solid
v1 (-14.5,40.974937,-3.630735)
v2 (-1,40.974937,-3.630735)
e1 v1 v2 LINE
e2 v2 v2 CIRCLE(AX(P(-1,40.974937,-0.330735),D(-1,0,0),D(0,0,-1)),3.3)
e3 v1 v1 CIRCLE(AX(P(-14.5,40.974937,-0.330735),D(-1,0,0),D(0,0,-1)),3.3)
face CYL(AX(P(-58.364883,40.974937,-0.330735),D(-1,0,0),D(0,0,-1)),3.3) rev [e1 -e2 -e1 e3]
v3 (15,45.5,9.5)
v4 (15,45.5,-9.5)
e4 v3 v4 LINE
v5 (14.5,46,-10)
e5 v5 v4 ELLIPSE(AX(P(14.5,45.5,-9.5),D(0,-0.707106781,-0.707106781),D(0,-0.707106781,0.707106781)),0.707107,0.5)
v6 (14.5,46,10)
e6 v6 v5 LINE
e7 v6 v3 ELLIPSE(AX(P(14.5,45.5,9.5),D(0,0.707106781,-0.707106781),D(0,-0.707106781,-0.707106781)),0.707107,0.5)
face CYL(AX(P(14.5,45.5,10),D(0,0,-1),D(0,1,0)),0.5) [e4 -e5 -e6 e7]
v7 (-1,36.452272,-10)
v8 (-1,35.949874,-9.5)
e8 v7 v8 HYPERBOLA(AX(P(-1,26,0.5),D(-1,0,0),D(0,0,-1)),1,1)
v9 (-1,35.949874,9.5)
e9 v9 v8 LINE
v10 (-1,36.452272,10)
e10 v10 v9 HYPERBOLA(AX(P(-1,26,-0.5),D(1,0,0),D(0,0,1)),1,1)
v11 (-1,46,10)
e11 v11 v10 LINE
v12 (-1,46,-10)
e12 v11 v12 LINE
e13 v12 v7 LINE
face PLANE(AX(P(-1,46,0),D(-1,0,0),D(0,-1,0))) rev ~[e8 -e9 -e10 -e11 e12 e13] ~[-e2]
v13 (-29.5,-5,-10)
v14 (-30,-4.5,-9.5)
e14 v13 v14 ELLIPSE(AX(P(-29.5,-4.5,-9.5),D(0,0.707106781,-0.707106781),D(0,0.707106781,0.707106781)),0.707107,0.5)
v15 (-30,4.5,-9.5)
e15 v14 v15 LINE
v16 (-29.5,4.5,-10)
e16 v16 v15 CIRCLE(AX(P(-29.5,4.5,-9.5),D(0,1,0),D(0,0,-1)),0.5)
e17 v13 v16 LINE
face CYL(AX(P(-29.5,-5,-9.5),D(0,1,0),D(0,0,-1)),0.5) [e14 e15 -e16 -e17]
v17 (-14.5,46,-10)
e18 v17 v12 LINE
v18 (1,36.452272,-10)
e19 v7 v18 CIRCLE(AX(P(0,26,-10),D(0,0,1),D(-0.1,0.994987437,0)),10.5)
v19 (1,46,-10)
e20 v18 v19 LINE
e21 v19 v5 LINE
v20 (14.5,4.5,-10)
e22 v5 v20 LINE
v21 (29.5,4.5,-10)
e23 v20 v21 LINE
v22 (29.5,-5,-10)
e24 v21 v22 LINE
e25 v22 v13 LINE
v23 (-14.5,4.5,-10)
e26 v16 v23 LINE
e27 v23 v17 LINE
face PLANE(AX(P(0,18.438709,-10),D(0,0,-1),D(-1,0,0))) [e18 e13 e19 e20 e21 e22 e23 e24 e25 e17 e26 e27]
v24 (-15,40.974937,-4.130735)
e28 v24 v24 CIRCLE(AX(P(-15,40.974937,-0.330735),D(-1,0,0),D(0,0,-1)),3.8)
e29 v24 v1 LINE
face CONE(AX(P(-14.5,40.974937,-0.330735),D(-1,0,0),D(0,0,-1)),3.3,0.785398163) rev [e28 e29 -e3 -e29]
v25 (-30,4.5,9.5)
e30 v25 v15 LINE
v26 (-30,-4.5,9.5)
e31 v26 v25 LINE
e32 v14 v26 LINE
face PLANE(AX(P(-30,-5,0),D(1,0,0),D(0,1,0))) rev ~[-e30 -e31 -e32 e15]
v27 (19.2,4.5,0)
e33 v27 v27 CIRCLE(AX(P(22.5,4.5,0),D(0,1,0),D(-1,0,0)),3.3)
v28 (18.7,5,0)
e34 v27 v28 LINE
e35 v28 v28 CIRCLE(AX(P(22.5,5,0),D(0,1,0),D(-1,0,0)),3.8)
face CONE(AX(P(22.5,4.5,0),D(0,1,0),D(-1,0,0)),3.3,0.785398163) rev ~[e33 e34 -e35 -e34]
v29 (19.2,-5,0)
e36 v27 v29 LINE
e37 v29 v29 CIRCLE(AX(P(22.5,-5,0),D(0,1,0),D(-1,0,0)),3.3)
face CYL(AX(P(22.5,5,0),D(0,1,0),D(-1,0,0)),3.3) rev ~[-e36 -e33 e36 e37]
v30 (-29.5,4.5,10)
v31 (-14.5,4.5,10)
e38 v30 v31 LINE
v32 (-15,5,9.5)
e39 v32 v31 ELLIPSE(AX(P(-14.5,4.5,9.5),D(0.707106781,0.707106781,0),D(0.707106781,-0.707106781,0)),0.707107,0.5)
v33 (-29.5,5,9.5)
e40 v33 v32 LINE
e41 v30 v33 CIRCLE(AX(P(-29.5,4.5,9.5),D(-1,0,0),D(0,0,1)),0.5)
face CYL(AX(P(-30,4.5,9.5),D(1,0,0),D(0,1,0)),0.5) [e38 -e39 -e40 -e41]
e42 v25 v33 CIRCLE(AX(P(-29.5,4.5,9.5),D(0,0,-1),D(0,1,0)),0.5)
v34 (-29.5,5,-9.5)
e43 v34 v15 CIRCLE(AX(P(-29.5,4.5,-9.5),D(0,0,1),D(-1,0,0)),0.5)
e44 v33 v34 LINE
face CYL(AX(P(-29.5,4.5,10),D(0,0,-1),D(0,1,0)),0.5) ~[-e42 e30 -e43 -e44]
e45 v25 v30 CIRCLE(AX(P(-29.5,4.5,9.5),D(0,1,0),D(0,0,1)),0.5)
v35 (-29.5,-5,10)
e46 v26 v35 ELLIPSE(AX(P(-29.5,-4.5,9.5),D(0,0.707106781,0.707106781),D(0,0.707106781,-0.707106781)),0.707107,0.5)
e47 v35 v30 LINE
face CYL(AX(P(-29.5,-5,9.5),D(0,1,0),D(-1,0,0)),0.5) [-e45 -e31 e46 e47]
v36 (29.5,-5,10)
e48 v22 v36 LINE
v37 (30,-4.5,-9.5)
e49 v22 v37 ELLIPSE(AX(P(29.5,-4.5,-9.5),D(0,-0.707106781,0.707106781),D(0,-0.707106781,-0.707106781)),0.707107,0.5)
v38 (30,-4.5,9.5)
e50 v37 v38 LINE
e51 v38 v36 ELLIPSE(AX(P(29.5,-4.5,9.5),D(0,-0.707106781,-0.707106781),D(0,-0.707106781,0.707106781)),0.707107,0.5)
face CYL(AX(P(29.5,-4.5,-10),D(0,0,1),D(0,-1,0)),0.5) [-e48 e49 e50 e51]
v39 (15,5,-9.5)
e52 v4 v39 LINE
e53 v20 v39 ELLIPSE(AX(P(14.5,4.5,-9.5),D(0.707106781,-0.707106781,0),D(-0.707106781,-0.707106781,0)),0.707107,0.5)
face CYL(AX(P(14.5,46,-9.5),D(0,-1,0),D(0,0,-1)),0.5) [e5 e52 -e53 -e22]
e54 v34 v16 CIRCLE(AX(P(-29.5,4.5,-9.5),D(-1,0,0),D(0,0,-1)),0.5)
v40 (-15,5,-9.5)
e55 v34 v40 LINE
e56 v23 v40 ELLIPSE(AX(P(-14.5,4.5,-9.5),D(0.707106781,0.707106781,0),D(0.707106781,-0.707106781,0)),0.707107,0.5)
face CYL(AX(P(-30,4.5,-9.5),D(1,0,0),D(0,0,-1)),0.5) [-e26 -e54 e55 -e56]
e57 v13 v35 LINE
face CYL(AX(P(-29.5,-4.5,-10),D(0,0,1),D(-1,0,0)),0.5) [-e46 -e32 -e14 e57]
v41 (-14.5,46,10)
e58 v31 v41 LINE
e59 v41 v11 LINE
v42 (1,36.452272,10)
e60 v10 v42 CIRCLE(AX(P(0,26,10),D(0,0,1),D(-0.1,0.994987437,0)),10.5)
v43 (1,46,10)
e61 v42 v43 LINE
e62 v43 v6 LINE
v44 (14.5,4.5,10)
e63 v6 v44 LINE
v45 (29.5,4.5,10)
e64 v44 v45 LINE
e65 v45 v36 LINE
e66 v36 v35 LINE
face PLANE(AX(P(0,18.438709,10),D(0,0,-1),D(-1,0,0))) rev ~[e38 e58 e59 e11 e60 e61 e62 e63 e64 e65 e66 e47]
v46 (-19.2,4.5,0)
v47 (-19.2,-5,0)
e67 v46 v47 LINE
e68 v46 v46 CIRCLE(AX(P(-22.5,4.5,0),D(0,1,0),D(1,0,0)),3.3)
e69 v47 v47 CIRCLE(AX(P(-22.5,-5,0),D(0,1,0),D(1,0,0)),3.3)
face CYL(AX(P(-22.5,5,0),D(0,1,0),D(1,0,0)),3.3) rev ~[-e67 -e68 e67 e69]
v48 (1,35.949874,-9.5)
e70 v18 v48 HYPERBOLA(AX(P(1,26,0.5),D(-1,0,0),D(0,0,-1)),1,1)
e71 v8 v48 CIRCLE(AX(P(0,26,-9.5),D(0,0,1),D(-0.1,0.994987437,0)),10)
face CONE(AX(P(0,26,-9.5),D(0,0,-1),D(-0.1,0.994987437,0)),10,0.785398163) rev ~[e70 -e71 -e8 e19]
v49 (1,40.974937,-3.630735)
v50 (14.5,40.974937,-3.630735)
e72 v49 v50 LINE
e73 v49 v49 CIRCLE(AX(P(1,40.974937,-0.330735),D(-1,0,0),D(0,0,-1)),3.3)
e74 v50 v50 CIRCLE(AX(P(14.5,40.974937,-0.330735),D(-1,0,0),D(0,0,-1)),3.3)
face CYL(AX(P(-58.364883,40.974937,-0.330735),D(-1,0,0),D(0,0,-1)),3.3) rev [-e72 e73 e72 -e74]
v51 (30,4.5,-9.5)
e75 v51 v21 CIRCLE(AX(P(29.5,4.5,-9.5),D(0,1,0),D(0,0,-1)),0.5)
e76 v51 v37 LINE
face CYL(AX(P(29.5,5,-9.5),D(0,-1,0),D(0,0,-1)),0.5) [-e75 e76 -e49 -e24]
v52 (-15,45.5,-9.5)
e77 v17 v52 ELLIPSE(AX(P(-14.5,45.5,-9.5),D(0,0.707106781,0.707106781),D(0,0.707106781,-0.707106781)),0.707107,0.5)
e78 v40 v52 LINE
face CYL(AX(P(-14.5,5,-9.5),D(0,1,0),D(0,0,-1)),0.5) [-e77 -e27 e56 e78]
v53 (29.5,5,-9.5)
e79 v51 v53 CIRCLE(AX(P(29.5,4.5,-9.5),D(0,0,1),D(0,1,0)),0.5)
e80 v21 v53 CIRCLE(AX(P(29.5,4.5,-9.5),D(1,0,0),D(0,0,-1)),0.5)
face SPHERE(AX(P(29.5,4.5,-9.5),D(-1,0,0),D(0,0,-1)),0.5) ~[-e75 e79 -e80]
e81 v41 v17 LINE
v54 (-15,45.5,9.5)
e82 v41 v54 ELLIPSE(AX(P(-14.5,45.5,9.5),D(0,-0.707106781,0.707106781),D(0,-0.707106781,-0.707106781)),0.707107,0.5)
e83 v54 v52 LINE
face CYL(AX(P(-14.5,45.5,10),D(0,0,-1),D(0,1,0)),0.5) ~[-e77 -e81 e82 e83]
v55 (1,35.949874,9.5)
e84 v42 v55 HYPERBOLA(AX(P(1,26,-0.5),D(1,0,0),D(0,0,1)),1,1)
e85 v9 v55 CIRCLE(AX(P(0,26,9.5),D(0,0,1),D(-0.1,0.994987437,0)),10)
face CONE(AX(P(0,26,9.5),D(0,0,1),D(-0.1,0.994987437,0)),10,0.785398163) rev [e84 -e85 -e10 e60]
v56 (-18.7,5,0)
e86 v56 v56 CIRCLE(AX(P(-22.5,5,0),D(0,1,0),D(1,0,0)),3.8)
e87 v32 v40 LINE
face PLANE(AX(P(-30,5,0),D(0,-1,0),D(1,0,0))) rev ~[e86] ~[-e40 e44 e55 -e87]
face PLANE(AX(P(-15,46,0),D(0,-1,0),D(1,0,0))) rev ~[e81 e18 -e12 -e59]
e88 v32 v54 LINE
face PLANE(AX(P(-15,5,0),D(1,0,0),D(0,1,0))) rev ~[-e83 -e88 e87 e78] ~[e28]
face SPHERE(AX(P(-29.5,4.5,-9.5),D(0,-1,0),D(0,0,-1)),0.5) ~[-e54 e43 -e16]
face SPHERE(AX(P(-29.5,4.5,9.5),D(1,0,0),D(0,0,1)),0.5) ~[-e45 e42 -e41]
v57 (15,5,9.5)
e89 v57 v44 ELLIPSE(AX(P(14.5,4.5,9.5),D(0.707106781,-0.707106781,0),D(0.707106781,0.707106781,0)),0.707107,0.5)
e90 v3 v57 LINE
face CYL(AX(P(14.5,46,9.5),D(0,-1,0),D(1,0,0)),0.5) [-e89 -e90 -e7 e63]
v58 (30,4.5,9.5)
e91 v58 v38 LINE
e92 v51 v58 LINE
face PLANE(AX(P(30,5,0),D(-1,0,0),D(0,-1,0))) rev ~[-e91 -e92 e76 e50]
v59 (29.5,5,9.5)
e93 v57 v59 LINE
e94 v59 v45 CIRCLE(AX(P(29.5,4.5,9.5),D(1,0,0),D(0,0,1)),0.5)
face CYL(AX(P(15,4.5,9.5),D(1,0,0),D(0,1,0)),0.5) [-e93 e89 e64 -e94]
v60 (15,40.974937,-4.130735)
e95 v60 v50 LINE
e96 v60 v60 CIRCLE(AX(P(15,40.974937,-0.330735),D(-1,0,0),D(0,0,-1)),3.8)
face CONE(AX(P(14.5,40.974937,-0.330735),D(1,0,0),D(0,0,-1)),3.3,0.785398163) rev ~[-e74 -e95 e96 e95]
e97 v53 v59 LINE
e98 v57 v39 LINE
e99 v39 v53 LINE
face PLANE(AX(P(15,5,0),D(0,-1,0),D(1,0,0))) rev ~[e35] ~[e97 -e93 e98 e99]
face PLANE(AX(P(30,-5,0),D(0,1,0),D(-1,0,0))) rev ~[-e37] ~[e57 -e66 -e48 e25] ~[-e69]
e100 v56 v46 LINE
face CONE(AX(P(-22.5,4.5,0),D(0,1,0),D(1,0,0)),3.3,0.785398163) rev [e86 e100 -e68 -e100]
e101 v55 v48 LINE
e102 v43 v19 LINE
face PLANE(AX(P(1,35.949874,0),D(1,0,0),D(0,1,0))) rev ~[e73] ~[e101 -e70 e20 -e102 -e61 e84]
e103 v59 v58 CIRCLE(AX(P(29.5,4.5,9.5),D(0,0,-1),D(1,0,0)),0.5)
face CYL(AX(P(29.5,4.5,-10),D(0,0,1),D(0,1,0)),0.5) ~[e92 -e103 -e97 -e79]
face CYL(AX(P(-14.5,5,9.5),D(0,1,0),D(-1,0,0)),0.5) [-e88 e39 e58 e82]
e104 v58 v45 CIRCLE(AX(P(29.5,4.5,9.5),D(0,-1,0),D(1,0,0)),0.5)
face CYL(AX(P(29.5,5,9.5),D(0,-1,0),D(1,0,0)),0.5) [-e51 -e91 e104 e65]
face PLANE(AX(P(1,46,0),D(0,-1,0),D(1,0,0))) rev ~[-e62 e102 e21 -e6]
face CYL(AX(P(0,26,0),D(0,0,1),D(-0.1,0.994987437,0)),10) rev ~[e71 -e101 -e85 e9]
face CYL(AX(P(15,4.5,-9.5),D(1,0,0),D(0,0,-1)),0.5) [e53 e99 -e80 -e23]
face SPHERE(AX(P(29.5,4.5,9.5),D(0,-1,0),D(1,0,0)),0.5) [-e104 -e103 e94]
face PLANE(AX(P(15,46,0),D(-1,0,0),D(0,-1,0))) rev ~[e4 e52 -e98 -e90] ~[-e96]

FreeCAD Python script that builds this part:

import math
import FreeCAD as App
import Part
import Sketcher


def edges_at(feature, points):
    """Names of the edges that pass closest to the given points."""
    edges = feature.Shape.Edges
    near = lambda p: min(range(len(edges)), key=lambda i: edges[i].distToShape(Part.Vertex(*p))[0])
    return sorted({f"Edge{near(p) + 1}" for p in points})

doc = App.newDocument("Part")
body = doc.addObject("PartDesign::Body", "Body")

# Sketch on XY plane
sketch1 = doc.addObject("Sketcher::SketchObject", "Sketch")
body.addObject(sketch1)
sketch1.AttachmentSupport = (doc.XY_Plane, [""])
sketch1.MapMode = "FlatFace"
sketch1.addGeometry(Part.LineSegment(App.Vector(-30, 5, 0), App.Vector(-30, -5, 0)), False)
sketch1.addGeometry(Part.LineSegment(App.Vector(-30, -5, 0), App.Vector(30, -5, 0)), False)
sketch1.addGeometry(Part.LineSegment(App.Vector(30, -5, 0), App.Vector(30, 5, 0)), False)
sketch1.addGeometry(Part.LineSegment(App.Vector(30, 5, 0), App.Vector(15, 5, 0)), False)
sketch1.addGeometry(Part.LineSegment(App.Vector(15, 5, 0), App.Vector(15, 46, 0)), False)
sketch1.addGeometry(Part.LineSegment(App.Vector(15, 46, 0), App.Vector(1, 46, 0)), False)
sketch1.addGeometry(Part.LineSegment(App.Vector(1, 46, 0), App.Vector(1, 35.9, 0)), False)
sketch1.addGeometry(Part.ArcOfCircle(Part.Circle(App.Vector(0, 26, 0), App.Vector(0, 0, 1), 10), math.radians(96), math.radians(444)), False)
sketch1.addGeometry(Part.LineSegment(App.Vector(-1, 35.9, 0), App.Vector(-1, 46, 0)), False)
sketch1.addGeometry(Part.LineSegment(App.Vector(-1, 46, 0), App.Vector(-15, 46, 0)), False)
sketch1.addGeometry(Part.LineSegment(App.Vector(-15, 46, 0), App.Vector(-15, 5, 0)), False)
sketch1.addGeometry(Part.LineSegment(App.Vector(-15, 5, 0), App.Vector(-30, 5, 0)), False)
sketch1.addConstraint(Sketcher.Constraint("Coincident", 0, 2, 1, 1))
sketch1.addConstraint(Sketcher.Constraint("Coincident", 1, 2, 2, 1))
sketch1.addConstraint(Sketcher.Constraint("Coincident", 2, 2, 3, 1))
sketch1.addConstraint(Sketcher.Constraint("Coincident", 3, 2, 4, 1))
sketch1.addConstraint(Sketcher.Constraint("Coincident", 4, 2, 5, 1))
sketch1.addConstraint(Sketcher.Constraint("Coincident", 5, 2, 6, 1))
sketch1.addConstraint(Sketcher.Constraint("Coincident", 6, 2, 7, 2))
sketch1.addConstraint(Sketcher.Constraint("Coincident", 7, 1, 8, 1))
sketch1.addConstraint(Sketcher.Constraint("Coincident", 8, 2, 9, 1))
sketch1.addConstraint(Sketcher.Constraint("Coincident", 9, 2, 10, 1))
sketch1.addConstraint(Sketcher.Constraint("Coincident", 10, 2, 11, 1))
sketch1.addConstraint(Sketcher.Constraint("Coincident", 11, 2, 0, 1))
sketch1.addConstraint(Sketcher.Constraint("Vertical", 0))
sketch1.addConstraint(Sketcher.Constraint("Horizontal", 1))
sketch1.addConstraint(Sketcher.Constraint("Vertical", 2))
sketch1.addConstraint(Sketcher.Constraint("Horizontal", 3))
sketch1.addConstraint(Sketcher.Constraint("Vertical", 4))
sketch1.addConstraint(Sketcher.Constraint("Horizontal", 5))
sketch1.addConstraint(Sketcher.Constraint("Vertical", 6))
sketch1.addConstraint(Sketcher.Constraint("Vertical", 8))
sketch1.addConstraint(Sketcher.Constraint("Horizontal", 9))
sketch1.addConstraint(Sketcher.Constraint("Vertical", 10))
sketch1.addConstraint(Sketcher.Constraint("Horizontal", 11))
sketch1.addConstraint(Sketcher.Constraint("Symmetric", 0, 2, 2, 2, -1, 1))
sketch1.addConstraint(Sketcher.Constraint("Symmetric", 6, 2, 7, 1, -2))
sketch1.addConstraint(Sketcher.Constraint("Symmetric", 4, 2, 9, 2, -2))
sketch1.addConstraint(Sketcher.Constraint("Horizontal", 3, 2, 10, 2))
sketch1.addConstraint(Sketcher.Constraint("Radius", 7, 10.0))
sketch1.addConstraint(Sketcher.Constraint("DistanceX", 1, 1, 1, 2, 60.0))
sketch1.addConstraint(Sketcher.Constraint("DistanceX", 3, 2, 3, 1, 15.0))
sketch1.addConstraint(Sketcher.Constraint("DistanceX", 5, 2, 5, 1, 14.0))
sketch1.addConstraint(Sketcher.Constraint("DistanceY", 0, 2, 0, 1, 10.0))
sketch1.addConstraint(Sketcher.Constraint("DistanceY", 4, 1, 4, 2, 41.0))
sketch1.addConstraint(Sketcher.Constraint("DistanceY", -1, 1, 7, 3, 26.0))
pad1 = doc.addObject("PartDesign::Pad", "Pad")
body.addObject(pad1)
pad1.Profile = sketch1
pad1.Length = 20
pad1.Midplane = True

# Sketch on XZ plane
sketch2 = doc.addObject("Sketcher::SketchObject", "Sketch001")
body.addObject(sketch2)
sketch2.AttachmentSupport = (doc.XZ_Plane, [""])
sketch2.MapMode = "FlatFace"
sketch2.AttachmentOffset = App.Placement(App.Vector(0, 0, -5), App.Rotation())
sketch2.addGeometry(Part.Circle(App.Vector(22.5, 0, 0), App.Vector(0, 0, 1), 3.3), False)
sketch2.addGeometry(Part.Circle(App.Vector(-22.5, 0, 0), App.Vector(0, 0, 1), 3.3), False)
sketch2.addConstraint(Sketcher.Constraint("Equal", 0, 1))
sketch2.addConstraint(Sketcher.Constraint("Symmetric", 0, 3, 1, 3, -1, 1))
sketch2.addConstraint(Sketcher.Constraint("PointOnObject", 0, 3, -1))
sketch2.addConstraint(Sketcher.Constraint("Diameter", 0, 6.6))
sketch2.addConstraint(Sketcher.Constraint("DistanceX", 1, 3, 0, 3, 45.0))
pocket1 = doc.addObject("PartDesign::Pocket", "Pocket")
body.addObject(pocket1)
pocket1.Profile = sketch2
pocket1.Type = "ThroughAll"
pocket1.Reversed = True

# Sketch on YZ plane
sketch3 = doc.addObject("Sketcher::SketchObject", "Sketch002")
body.addObject(sketch3)
sketch3.AttachmentSupport = (doc.YZ_Plane, [""])
sketch3.MapMode = "FlatFace"
sketch3.AttachmentOffset = App.Placement(App.Vector(0, 0, -1), App.Rotation())
sketch3.addGeometry(Part.Circle(App.Vector(41, -0.3, 0), App.Vector(0, 0, 1), 3.3), False)
sketch3.addConstraint(Sketcher.Constraint("Diameter", 0, 6.6))
sketch3.addConstraint(Sketcher.Constraint("DistanceX", -1, 1, 0, 3, 40.974937))
sketch3.addConstraint(Sketcher.Constraint("DistanceY", 0, 3, -1, 1, 0.330735))
pocket2 = doc.addObject("PartDesign::Pocket", "Pocket001")
body.addObject(pocket2)
pocket2.Profile = sketch3
pocket2.Type = "ThroughAll"
pocket2.Midplane = True
doc.recompute()

chamfer = doc.addObject("PartDesign::Chamfer", "Chamfer")
body.addObject(chamfer)
chamfer.Base = (pocket2, edges_at(pocket2, [
    (0, 16, -10),
    (0, 16, 10),
    (25.8, 5, 0),
    (-25.8, 5, 0),
    (-15, 40.975, 2.969),
    (15, 40.975, 2.969),
]))
chamfer.Size = 0.5
doc.recompute()

fillet = doc.addObject("PartDesign::Fillet", "Fillet")
body.addObject(fillet)
fillet.Base = (chamfer, edges_at(chamfer, [
    (-22.5, 5, 10),
    (15, 25.5, -10),
    (22.5, 5, -10),
    (-30, 0, 10),
    (30, 0, -10),
    (-30, 0, -10),
    (-22.5, 5, -10),
    (-15, 25.5, -10),
    (30, 0, 10),
    (15, 46, 0),
    (30, 5, 0),
    (30, -5, 0),
    (-30, -5, 0),
    (-30, 5, 0),
    (-15, 46, 0),
    (22.5, 5, 10),
    (15, 25.5, 10),
    (-15, 25.5, 10),
]))
fillet.Radius = 0.5

doc.recompute()
